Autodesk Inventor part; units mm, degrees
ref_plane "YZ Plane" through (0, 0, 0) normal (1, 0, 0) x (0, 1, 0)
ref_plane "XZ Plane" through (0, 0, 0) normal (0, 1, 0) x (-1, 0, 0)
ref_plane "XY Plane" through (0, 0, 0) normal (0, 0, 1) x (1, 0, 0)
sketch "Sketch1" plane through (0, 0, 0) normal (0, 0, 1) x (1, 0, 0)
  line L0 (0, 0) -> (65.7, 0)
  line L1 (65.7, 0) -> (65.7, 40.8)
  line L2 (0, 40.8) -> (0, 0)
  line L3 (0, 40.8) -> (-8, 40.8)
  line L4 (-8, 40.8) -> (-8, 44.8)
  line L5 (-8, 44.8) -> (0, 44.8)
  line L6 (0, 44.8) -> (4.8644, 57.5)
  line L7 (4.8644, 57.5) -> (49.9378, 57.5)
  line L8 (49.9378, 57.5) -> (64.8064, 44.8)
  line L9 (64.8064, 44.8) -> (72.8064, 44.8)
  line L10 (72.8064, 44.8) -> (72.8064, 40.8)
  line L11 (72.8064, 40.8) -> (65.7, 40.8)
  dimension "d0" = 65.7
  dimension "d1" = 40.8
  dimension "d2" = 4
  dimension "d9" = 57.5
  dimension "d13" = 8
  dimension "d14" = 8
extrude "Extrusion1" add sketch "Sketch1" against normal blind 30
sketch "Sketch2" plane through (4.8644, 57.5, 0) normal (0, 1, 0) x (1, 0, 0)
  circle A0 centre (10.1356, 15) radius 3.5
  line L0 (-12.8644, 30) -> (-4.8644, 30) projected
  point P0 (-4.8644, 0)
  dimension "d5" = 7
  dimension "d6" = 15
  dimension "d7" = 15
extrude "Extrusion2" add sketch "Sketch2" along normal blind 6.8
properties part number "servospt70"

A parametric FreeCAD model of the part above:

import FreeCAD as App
import Part
import Sketcher


def add_polygon(sketch, points):
    """Adds a closed chain of lines whose ends are joined by coincident constraints."""
    first, n = sketch.GeometryCount, len(points)
    for a, b in zip(points, points[1:] + points[:1]):
        sketch.addGeometry(Part.LineSegment(App.Vector(*a, 0), App.Vector(*b, 0)), False)
    for i in range(n):
        sketch.addConstraint(Sketcher.Constraint("Coincident", first + i, 2, first + (i + 1) % n, 1))

doc = App.newDocument("Part")
body = doc.addObject("PartDesign::Body", "Body")

# Sketch on XY plane
sketch1 = body.newObject("Sketcher::SketchObject", "Sketch")
sketch1.AttachmentSupport = (doc.getObject("XY_Plane"), [""])
sketch1.MapMode = "FlatFace"
add_polygon(sketch1, [(0, 40.8), (0, 0), (65.7, 0), (65.7, 40.8), (72.8064, 40.8), (72.8064, 44.8), (64.8064, 44.8), (49.9378, 57.5), (4.8644, 57.5), (0, 44.8), (-8, 44.8), (-8, 40.8)])  # lines 0-11
sketch1.addConstraint([
    Sketcher.Constraint("Vertical", 0),
    Sketcher.Constraint("Horizontal", 1),
    Sketcher.Constraint("Vertical", 2),
    Sketcher.Constraint("Horizontal", 3),
    Sketcher.Constraint("Vertical", 4),
    Sketcher.Constraint("Horizontal", 5),
    Sketcher.Constraint("Horizontal", 7),
    Sketcher.Constraint("Horizontal", 9),
    Sketcher.Constraint("Vertical", 10),
    Sketcher.Constraint("Horizontal", 11),
    Sketcher.Constraint("Coincident", 0, 2, -1, 1),
    Sketcher.Constraint("PointOnObject", 8, 2, -2),
    Sketcher.Constraint("Horizontal", 5, 2, 8, 2),
    Sketcher.Constraint("Horizontal", 3, 2, 10, 2),
    Sketcher.Constraint("Equal", 5, 9),
    Sketcher.Constraint("DistanceX", 5, 2, 5, 1, 8.0),
    Sketcher.Constraint("DistanceY", 4, 1, 4, 2, 4.0),
    Sketcher.Constraint("DistanceX", 1, 1, 1, 2, 65.7),
    Sketcher.Constraint("DistanceY", 0, 2, 0, 1, 40.8),
    Sketcher.Constraint("DistanceY", -1, 1, 6, 2, 57.5),
    Sketcher.Constraint("DistanceX", 3, 1, 3, 2, 7.1064),
    Sketcher.Constraint("DistanceX", 7, 2, 7, 1, 45.0734),
    Sketcher.Constraint("DistanceX", 7, 2, 5, 2, 59.942),
])
pad1 = body.newObject("PartDesign::Pad", "Pad")
pad1.Profile = sketch1
pad1.Length = 30
pad1.Reversed = True

# Sketch on XZ plane
sketch2 = body.newObject("Sketcher::SketchObject", "Sketch001")
sketch2.AttachmentSupport = (doc.getObject("XZ_Plane"), [""])
sketch2.MapMode = "FlatFace"
sketch2.AttachmentOffset = App.Placement(App.Vector(0, 0, -57.5), App.Rotation())
sketch2.addGeometry(Part.Circle(App.Vector(15, -15, 0), App.Vector(0, 0, 1), 3.5), False)
sketch2.addConstraint([
    Sketcher.Constraint("Diameter", 0, 7.0),
    Sketcher.Constraint("DistanceX", -1, 1, 0, 3, 15.0),
    Sketcher.Constraint("DistanceY", 0, 3, -1, 1, 15.0),
])
pad2 = body.newObject("PartDesign::Pad", "Pad001")
pad2.Profile = sketch2
pad2.Length = 6.8
pad2.Reversed = True

doc.recompute()
